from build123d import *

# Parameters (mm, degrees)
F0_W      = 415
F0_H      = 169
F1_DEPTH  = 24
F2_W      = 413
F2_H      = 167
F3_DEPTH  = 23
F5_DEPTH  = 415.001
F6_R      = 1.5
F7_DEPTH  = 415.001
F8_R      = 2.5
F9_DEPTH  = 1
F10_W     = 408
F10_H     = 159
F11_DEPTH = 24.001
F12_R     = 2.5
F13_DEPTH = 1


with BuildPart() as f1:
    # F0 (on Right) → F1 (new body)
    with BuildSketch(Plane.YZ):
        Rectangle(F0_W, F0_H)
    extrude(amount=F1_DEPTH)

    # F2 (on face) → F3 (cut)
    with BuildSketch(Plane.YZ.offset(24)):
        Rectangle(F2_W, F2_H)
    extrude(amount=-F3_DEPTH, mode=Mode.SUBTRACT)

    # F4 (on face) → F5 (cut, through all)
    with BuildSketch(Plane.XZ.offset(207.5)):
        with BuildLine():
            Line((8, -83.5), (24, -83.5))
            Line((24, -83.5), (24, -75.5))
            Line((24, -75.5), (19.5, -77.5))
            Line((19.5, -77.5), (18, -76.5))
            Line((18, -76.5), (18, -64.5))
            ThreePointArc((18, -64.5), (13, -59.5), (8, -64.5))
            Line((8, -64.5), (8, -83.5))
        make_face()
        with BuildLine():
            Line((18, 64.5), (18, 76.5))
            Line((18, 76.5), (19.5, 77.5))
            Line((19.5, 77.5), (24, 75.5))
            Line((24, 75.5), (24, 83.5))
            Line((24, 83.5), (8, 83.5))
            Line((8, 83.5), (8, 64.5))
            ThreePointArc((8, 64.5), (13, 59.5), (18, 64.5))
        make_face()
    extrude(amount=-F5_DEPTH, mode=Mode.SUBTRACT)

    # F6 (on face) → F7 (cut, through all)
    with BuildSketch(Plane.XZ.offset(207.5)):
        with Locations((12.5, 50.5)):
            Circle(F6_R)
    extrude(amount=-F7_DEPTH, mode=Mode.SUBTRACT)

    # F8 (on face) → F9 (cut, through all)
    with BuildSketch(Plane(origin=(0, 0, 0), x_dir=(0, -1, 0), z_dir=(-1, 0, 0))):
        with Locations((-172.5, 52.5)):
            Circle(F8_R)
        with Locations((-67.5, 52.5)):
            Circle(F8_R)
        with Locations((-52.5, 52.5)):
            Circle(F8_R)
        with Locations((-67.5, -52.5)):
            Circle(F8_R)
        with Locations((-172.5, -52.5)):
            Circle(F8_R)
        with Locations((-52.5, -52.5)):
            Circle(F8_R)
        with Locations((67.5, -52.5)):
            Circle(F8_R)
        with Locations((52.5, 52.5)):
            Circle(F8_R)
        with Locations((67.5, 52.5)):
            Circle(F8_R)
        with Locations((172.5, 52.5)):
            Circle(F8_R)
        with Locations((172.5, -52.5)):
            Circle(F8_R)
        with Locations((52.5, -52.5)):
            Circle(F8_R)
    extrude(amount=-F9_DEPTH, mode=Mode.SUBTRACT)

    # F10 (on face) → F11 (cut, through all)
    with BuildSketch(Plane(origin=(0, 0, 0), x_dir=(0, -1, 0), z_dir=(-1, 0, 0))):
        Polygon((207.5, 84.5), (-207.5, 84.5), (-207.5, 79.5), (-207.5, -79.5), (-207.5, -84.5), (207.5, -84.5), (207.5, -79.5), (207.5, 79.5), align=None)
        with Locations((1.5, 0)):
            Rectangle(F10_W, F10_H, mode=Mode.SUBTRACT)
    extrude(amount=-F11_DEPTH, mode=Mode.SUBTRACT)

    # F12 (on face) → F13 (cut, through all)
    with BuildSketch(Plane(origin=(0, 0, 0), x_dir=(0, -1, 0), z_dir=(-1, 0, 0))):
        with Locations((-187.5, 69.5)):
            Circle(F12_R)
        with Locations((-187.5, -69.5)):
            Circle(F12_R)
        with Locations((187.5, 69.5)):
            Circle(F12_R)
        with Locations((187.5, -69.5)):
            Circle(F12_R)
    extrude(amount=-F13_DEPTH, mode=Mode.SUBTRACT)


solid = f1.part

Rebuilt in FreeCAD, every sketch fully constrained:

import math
import FreeCAD as App
import Part
import Sketcher
from FreeCAD import Vector
Q = App.Units.Quantity


def add_polygon(sketch, points):
    """Adds a closed chain of lines whose ends are joined by coincident constraints."""
    first, n = sketch.GeometryCount, len(points)
    for a, b in zip(points, points[1:] + points[:1]):
        sketch.addGeometry(Part.LineSegment(App.Vector(*a, 0), App.Vector(*b, 0)), False)
    for i in range(n):
        sketch.addConstraint(Sketcher.Constraint("Coincident", first + i, 2, first + (i + 1) % n, 1))

doc = App.newDocument("Part")
body = doc.addObject("PartDesign::Body", "Body")

# Sketch on YZ plane
sketch1 = body.newObject("Sketcher::SketchObject", "Sketch")
sketch1.AttachmentSupport = (doc.getObject("YZ_Plane"), [""])
sketch1.MapMode = "FlatFace"
add_polygon(sketch1, [(-207.5, 84.5), (-207.5, -84.5), (207.5, -84.5), (207.5, 84.5)])  # lines 0-3
sketch1.addConstraint([
    Sketcher.Constraint("Vertical", 0),
    Sketcher.Constraint("Horizontal", 1),
    Sketcher.Constraint("Vertical", 2),
    Sketcher.Constraint("Horizontal", 3),
    Sketcher.Constraint("Symmetric", 0, 2, 2, 2, -1, 1),
    Sketcher.Constraint("DistanceX", 1, 1, 1, 2, Q("415 mm")),
    Sketcher.Constraint("DistanceY", 0, 2, 0, 1, Q("169 mm")),
])
pad1 = body.newObject("PartDesign::Pad", "Pad")
pad1.Profile = sketch1
pad1.Length = 24

# Sketch on YZ plane
sketch2 = body.newObject("Sketcher::SketchObject", "Sketch001")
sketch2.AttachmentSupport = (doc.getObject("YZ_Plane"), [""])
sketch2.MapMode = "FlatFace"
sketch2.AttachmentOffset = App.Placement(Vector(0, 0, 24), App.Rotation())
add_polygon(sketch2, [(-206.5, 83.5), (-206.5, -83.5), (206.5, -83.5), (206.5, 83.5)])  # lines 0-3
sketch2.addConstraint([
    Sketcher.Constraint("Vertical", 0),
    Sketcher.Constraint("Horizontal", 1),
    Sketcher.Constraint("Vertical", 2),
    Sketcher.Constraint("Horizontal", 3),
    Sketcher.Constraint("Symmetric", 0, 2, 2, 2, -1, 1),
    Sketcher.Constraint("DistanceX", 1, 1, 1, 2, Q("413 mm")),
    Sketcher.Constraint("DistanceY", 0, 2, 0, 1, Q("167 mm")),
])
pocket1 = body.newObject("PartDesign::Pocket", "Pocket")
pocket1.Profile = sketch2
pocket1.Length = 23

# Sketch on XZ plane
sketch3 = body.newObject("Sketcher::SketchObject", "Sketch002")
sketch3.AttachmentSupport = (doc.getObject("XZ_Plane"), [""])
sketch3.MapMode = "FlatFace"
sketch3.AttachmentOffset = App.Placement(Vector(0, 0, 207.5), App.Rotation())
sketch3.addGeometry([
    Part.LineSegment(Vector(8, -83.5, 0), Vector(24, -83.5, 0)),  # 0
    Part.LineSegment(Vector(24, -83.5, 0), Vector(24, -75.5, 0)),  # 1
    Part.LineSegment(Vector(24, -75.5, 0), Vector(19.5, -77.5, 0)),  # 2
    Part.LineSegment(Vector(19.5, -77.5, 0), Vector(18, -76.5, 0)),  # 3
    Part.LineSegment(Vector(18, -76.5, 0), Vector(18, -64.5, 0)),  # 4
    Part.ArcOfCircle(Part.Circle(Vector(13, -64.5, 0), Vector(0, 0, 1), 5), math.radians(0), math.radians(180)),  # 5
    Part.LineSegment(Vector(8, -64.5, 0), Vector(8, -83.5, 0)),  # 6
    Part.LineSegment(Vector(18, 64.5, 0), Vector(18, 76.5, 0)),  # 7
    Part.LineSegment(Vector(18, 76.5, 0), Vector(19.5, 77.5, 0)),  # 8
    Part.LineSegment(Vector(19.5, 77.5, 0), Vector(24, 75.5, 0)),  # 9
    Part.LineSegment(Vector(24, 75.5, 0), Vector(24, 83.5, 0)),  # 10
    Part.LineSegment(Vector(24, 83.5, 0), Vector(8, 83.5, 0)),  # 11
    Part.LineSegment(Vector(8, 83.5, 0), Vector(8, 64.5, 0)),  # 12
    Part.ArcOfCircle(Part.Circle(Vector(13, 64.5, 0), Vector(0, 0, 1), 5), math.radians(180), math.radians(360)),  # 13
], False)
sketch3.addConstraint([
    Sketcher.Constraint("Coincident", 0, 2, 1, 1),
    Sketcher.Constraint("Coincident", 1, 2, 2, 1),
    Sketcher.Constraint("Coincident", 2, 2, 3, 1),
    Sketcher.Constraint("Coincident", 3, 2, 4, 1),
    Sketcher.Constraint("Tangent", 4, 2, 5, 1),
    Sketcher.Constraint("Tangent", 5, 2, 6, 1),
    Sketcher.Constraint("Coincident", 6, 2, 0, 1),
    Sketcher.Constraint("Coincident", 7, 2, 8, 1),
    Sketcher.Constraint("Coincident", 8, 2, 9, 1),
    Sketcher.Constraint("Coincident", 9, 2, 10, 1),
    Sketcher.Constraint("Coincident", 10, 2, 11, 1),
    Sketcher.Constraint("Coincident", 11, 2, 12, 1),
    Sketcher.Constraint("Tangent", 12, 2, 13, 1),
    Sketcher.Constraint("Tangent", 13, 2, 7, 1),
    Sketcher.Constraint("Horizontal", 0),
    Sketcher.Constraint("Vertical", 1),
    Sketcher.Constraint("Vertical", 4),
    Sketcher.Constraint("Vertical", 6),
    Sketcher.Constraint("Vertical", 7),
    Sketcher.Constraint("Vertical", 10),
    Sketcher.Constraint("Horizontal", 11),
    Sketcher.Constraint("Vertical", 12),
    Sketcher.Constraint("Equal", 5, 13),
    Sketcher.Constraint("Symmetric", 5, 3, 13, 3, -1),
    Sketcher.Constraint("Symmetric", 2, 2, 8, 2, -1),
    Sketcher.Constraint("Symmetric", 1, 2, 9, 2, -1),
    Sketcher.Constraint("Equal", 4, 7),
    Sketcher.Constraint("Equal", 1, 10),
    Sketcher.Constraint("Radius", 5, Q("5 mm")),
    Sketcher.Constraint("DistanceX", 0, 1, 0, 2, Q("16 mm")),
    Sketcher.Constraint("DistanceY", 1, 1, 1, 2, Q("8 mm")),
    Sketcher.Constraint("DistanceY", 4, 1, 4, 2, Q("12 mm")),
    Sketcher.Constraint("DistanceY", 6, 2, 6, 1, Q("19 mm")),
    Sketcher.Constraint("DistanceX", -1, 1, 5, 3, Q("13 mm")),
    Sketcher.Constraint("DistanceY", 5, 3, 13, 3, Q("129 mm")),
    Sketcher.Constraint("DistanceY", 2, 2, 1, 2, Q("2 mm")),
    Sketcher.Constraint("DistanceX", -1, 1, 2, 2, Q("19.5 mm")),
])
pocket2 = body.newObject("PartDesign::Pocket", "Pocket001")
pocket2.Profile = sketch3
pocket2.Type = "ThroughAll"

# Sketch on XZ plane
sketch4 = body.newObject("Sketcher::SketchObject", "Sketch003")
sketch4.AttachmentSupport = (doc.getObject("XZ_Plane"), [""])
sketch4.MapMode = "FlatFace"
sketch4.AttachmentOffset = App.Placement(Vector(0, 0, 207.5), App.Rotation())
sketch4.addGeometry(Part.Circle(Vector(12.5, 50.5, 0), Vector(0, 0, 1), 1.5), False)
sketch4.addConstraint([
    Sketcher.Constraint("Diameter", 0, Q("3 mm")),
    Sketcher.Constraint("DistanceX", -1, 1, 0, 3, Q("12.5 mm")),
    Sketcher.Constraint("DistanceY", -1, 1, 0, 3, Q("50.5 mm")),
])
pocket3 = body.newObject("PartDesign::Pocket", "Pocket002")
pocket3.Profile = sketch4
pocket3.Type = "ThroughAll"

# Sketch on YZ plane
sketch5 = body.newObject("Sketcher::SketchObject", "Sketch004")
sketch5.AttachmentSupport = (doc.getObject("YZ_Plane"), [""])
sketch5.MapMode = "FlatFace"
sketch5.addGeometry([
    Part.Circle(Vector(172.5, 52.5, 0), Vector(0, 0, 1), 2.5),  # 0
    Part.Circle(Vector(67.5, 52.5, 0), Vector(0, 0, 1), 2.5),  # 1
    Part.Circle(Vector(52.5, 52.5, 0), Vector(0, 0, 1), 2.5),  # 2
    Part.Circle(Vector(67.5, -52.5, 0), Vector(0, 0, 1), 2.5),  # 3
    Part.Circle(Vector(172.5, -52.5, 0), Vector(0, 0, 1), 2.5),  # 4
    Part.Circle(Vector(52.5, -52.5, 0), Vector(0, 0, 1), 2.5),  # 5
    Part.Circle(Vector(-67.5, -52.5, 0), Vector(0, 0, 1), 2.5),  # 6
    Part.Circle(Vector(-52.5, 52.5, 0), Vector(0, 0, 1), 2.5),  # 7
    Part.Circle(Vector(-67.5, 52.5, 0), Vector(0, 0, 1), 2.5),  # 8
    Part.Circle(Vector(-172.5, 52.5, 0), Vector(0, 0, 1), 2.5),  # 9
    Part.Circle(Vector(-172.5, -52.5, 0), Vector(0, 0, 1), 2.5),  # 10
    Part.Circle(Vector(-52.5, -52.5, 0), Vector(0, 0, 1), 2.5),  # 11
], False)
sketch5.addConstraint([
    Sketcher.Constraint("Equal", 0, 1),
    Sketcher.Constraint("Equal", 1, 2),
    Sketcher.Constraint("Equal", 2, 3),
    Sketcher.Constraint("Equal", 3, 4),
    Sketcher.Constraint("Equal", 4, 5),
    Sketcher.Constraint("Equal", 5, 6),
    Sketcher.Constraint("Equal", 6, 7),
    Sketcher.Constraint("Equal", 7, 8),
    Sketcher.Constraint("Equal", 8, 9),
    Sketcher.Constraint("Equal", 9, 10),
    Sketcher.Constraint("Equal", 10, 11),
    Sketcher.Constraint("Symmetric", 1, 3, 6, 3, -1, 1),
    Sketcher.Constraint("Symmetric", 5, 3, 7, 3, -1, 1),
    Sketcher.Constraint("Symmetric", 3, 3, 8, 3, -1, 1),
    Sketcher.Constraint("Symmetric", 4, 3, 9, 3, -1, 1),
    Sketcher.Constraint("Symmetric", 0, 3, 10, 3, -1, 1),
    Sketcher.Constraint("Symmetric", 2, 3, 11, 3, -1, 1),
    Sketcher.Constraint("Symmetric", 3, 3, 6, 3, -2),
    Sketcher.Constraint("Symmetric", 2, 3, 7, 3, -2),
    Sketcher.Constraint("Symmetric", 0, 3, 9, 3, -2),
    Sketcher.Constraint("Horizontal", 0, 3, 1, 3),
    Sketcher.Constraint("Horizontal", 1, 3, 2, 3),
    Sketcher.Constraint("Diameter", 0, Q("5 mm")),
    Sketcher.Constraint("DistanceX", 1, 3, 0, 3, Q("105 mm")),
    Sketcher.Constraint("DistanceX", 2, 3, 1, 3, Q("15 mm")),
    Sketcher.Constraint("DistanceY", 3, 3, 1, 3, Q("105 mm")),
    Sketcher.Constraint("DistanceX", 6, 3, 5, 3, Q("120 mm")),
])
pocket4 = body.newObject("PartDesign::Pocket", "Pocket003")
pocket4.Profile = sketch5
pocket4.Type = "ThroughAll"
pocket4.Reversed = True

# Sketch on YZ plane
sketch6 = body.newObject("Sketcher::SketchObject", "Sketch005")
sketch6.AttachmentSupport = (doc.getObject("YZ_Plane"), [""])
sketch6.MapMode = "FlatFace"
add_polygon(sketch6, [(-207.5, 84.5), (207.5, 84.5), (207.5, -84.5), (-207.5, -84.5)])  # lines 0-3
add_polygon(sketch6, [(-205.5, -79.5), (202.5, -79.5), (202.5, 79.5), (-205.5, 79.5)])  # lines 4-7
sketch6.addConstraint([
    Sketcher.Constraint("Horizontal", 0),
    Sketcher.Constraint("Vertical", 1),
    Sketcher.Constraint("Horizontal", 2),
    Sketcher.Constraint("Vertical", 3),
    Sketcher.Constraint("Horizontal", 4),
    Sketcher.Constraint("Vertical", 5),
    Sketcher.Constraint("Horizontal", 6),
    Sketcher.Constraint("Vertical", 7),
    Sketcher.Constraint("Symmetric", 0, 2, 2, 2, -1, 1),
    Sketcher.Constraint("DistanceX", 0, 1, 0, 2, Q("415 mm")),
    Sketcher.Constraint("DistanceX", 4, 1, 4, 2, Q("408 mm")),
    Sketcher.Constraint("DistanceY", 1, 2, 1, 1, Q("169 mm")),
    Sketcher.Constraint("DistanceY", 5, 1, 5, 2, Q("159 mm")),
    Sketcher.Constraint("DistanceX", 4, 2, 1, 2, Q("5 mm")),
    Sketcher.Constraint("DistanceY", 1, 2, 4, 2, Q("5 mm")),
])
pocket5 = body.newObject("PartDesign::Pocket", "Pocket004")
pocket5.Profile = sketch6
pocket5.Type = "ThroughAll"
pocket5.Reversed = True

# Sketch on YZ plane
sketch7 = body.newObject("Sketcher::SketchObject", "Sketch006")
sketch7.AttachmentSupport = (doc.getObject("YZ_Plane"), [""])
sketch7.MapMode = "FlatFace"
sketch7.addGeometry([
    Part.Circle(Vector(187.5, 69.5, 0), Vector(0, 0, 1), 2.5),
    Part.Circle(Vector(187.5, -69.5, 0), Vector(0, 0, 1), 2.5),
    Part.Circle(Vector(-187.5, 69.5, 0), Vector(0, 0, 1), 2.5),
    Part.Circle(Vector(-187.5, -69.5, 0), Vector(0, 0, 1), 2.5),
], False)
sketch7.addConstraint([
    Sketcher.Constraint("Equal", 0, 1),
    Sketcher.Constraint("Equal", 1, 2),
    Sketcher.Constraint("Equal", 2, 3),
    Sketcher.Constraint("Symmetric", 1, 3, 2, 3, -1, 1),
    Sketcher.Constraint("Symmetric", 0, 3, 3, 3, -1, 1),
    Sketcher.Constraint("Symmetric", 0, 3, 2, 3, -2),
    Sketcher.Constraint("Diameter", 0, Q("5 mm")),
    Sketcher.Constraint("DistanceY", 1, 3, 0, 3, Q("139 mm")),
    Sketcher.Constraint("DistanceX", 2, 3, 0, 3, Q("375 mm")),
])
pocket6 = body.newObject("PartDesign::Pocket", "Pocket005")
pocket6.Profile = sketch7
pocket6.Type = "ThroughAll"
pocket6.Reversed = True

doc.recompute()
